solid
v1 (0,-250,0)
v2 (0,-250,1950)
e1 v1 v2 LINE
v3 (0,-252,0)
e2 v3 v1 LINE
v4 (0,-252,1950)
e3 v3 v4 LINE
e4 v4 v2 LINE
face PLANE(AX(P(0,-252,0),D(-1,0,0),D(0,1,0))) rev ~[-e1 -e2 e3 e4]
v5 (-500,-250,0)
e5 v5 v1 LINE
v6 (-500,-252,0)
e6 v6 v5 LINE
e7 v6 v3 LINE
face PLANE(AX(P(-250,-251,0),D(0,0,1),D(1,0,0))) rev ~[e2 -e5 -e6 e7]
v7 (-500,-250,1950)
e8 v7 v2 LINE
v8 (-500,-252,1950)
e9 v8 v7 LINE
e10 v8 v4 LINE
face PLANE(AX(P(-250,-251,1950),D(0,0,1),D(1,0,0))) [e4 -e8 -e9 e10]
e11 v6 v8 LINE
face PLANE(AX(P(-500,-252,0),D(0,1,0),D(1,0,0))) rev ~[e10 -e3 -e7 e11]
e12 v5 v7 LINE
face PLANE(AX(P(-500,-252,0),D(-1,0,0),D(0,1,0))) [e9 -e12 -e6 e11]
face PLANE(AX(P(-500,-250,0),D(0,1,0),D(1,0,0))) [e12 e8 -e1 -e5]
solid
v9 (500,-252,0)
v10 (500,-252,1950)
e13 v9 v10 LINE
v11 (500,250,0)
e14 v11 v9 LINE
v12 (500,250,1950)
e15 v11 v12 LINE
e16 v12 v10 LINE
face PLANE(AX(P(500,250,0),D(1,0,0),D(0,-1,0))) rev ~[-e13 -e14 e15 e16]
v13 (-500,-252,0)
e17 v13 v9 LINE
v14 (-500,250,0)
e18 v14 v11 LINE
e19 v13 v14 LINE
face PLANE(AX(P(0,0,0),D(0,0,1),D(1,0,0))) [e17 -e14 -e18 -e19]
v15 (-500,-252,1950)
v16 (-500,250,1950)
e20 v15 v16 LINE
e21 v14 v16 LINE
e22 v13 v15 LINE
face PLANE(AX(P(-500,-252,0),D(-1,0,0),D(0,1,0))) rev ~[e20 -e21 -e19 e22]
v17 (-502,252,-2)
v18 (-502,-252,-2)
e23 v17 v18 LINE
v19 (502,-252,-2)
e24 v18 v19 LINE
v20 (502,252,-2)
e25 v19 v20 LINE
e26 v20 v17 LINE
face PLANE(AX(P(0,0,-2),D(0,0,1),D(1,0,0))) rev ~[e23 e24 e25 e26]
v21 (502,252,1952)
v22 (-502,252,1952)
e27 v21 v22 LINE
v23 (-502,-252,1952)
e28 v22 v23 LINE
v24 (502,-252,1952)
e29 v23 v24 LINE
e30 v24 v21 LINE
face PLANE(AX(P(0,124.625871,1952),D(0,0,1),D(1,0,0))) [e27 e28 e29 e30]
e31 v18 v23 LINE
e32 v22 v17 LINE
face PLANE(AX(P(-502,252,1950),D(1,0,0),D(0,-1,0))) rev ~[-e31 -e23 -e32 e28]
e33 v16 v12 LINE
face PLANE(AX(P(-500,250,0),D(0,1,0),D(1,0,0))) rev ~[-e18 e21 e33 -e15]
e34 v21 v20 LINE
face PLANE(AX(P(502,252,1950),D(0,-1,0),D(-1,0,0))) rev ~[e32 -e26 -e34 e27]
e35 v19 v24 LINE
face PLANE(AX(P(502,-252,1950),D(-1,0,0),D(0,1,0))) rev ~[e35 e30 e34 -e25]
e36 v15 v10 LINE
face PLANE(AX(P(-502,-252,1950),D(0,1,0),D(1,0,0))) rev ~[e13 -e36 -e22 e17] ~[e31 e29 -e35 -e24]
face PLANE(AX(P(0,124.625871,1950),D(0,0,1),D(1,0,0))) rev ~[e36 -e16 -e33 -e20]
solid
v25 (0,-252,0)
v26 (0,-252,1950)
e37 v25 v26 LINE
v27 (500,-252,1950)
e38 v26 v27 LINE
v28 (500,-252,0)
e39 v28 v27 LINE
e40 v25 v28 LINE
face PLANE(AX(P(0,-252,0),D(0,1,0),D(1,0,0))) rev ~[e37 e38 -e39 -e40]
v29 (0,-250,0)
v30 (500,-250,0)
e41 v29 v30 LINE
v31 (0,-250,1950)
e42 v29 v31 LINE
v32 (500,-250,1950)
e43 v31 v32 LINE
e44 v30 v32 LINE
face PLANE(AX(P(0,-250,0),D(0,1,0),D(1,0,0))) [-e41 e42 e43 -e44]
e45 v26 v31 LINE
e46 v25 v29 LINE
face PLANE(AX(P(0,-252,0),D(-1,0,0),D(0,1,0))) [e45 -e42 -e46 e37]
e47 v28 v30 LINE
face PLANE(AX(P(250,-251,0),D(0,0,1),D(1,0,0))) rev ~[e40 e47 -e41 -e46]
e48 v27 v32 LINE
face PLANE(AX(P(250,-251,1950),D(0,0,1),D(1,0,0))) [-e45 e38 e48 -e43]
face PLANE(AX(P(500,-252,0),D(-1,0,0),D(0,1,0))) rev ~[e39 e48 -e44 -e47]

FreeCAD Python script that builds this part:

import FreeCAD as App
import Part
import Sketcher

doc = App.newDocument("Part")
params = doc.addObject("Spreadsheet::Sheet", "Params")
for row, (alias, value) in enumerate([
    ("sketch1_width", "1004 mm"),
    ("sketch1_height", "504 mm"),
    ("pad1_length", "2 mm"),
    ("sketch2_width", "1000 mm"),
    ("sketch2_width2", "2 mm"),
    ("sketch2_height", "502 mm"),
    ("sketch2_height2", "504 mm"),
    ("pad2_length", "1950 mm"),
    ("sketch3_width", "1004 mm"),
    ("sketch3_height", "504 mm"),
    ("pad3_length", "2 mm"),
    ("sketch4_width", "500 mm"),
    ("sketch4_height", "2 mm"),
    ("pad4_length", "1950 mm"),
    ("sketch5_width", "500 mm"),
    ("sketch5_height", "2 mm"),
    ("pad5_length", "1950 mm"),
], start=1):
    params.set(f"A{row}", alias)
    params.set(f"B{row}", "=" + value)
    params.setAlias(f"B{row}", alias)

body = doc.addObject("PartDesign::Body", "Body")

sketch1 = doc.addObject("Sketcher::SketchObject", "Sketch")
body.addObject(sketch1)
sketch1.AttachmentSupport = (doc.XY_Plane, [""])
sketch1.MapMode = "FlatFace"
sketch1.addGeometry([
    Part.LineSegment(App.Vector(502, -252, 0), App.Vector(502, 252, 0)),
    Part.LineSegment(App.Vector(502, 252, 0), App.Vector(-502, 252, 0)),
    Part.LineSegment(App.Vector(-502, 252, 0), App.Vector(-502, -252, 0)),
    Part.LineSegment(App.Vector(-502, -252, 0), App.Vector(502, -252, 0)),
], False)
sketch1.addConstraint([
    Sketcher.Constraint("Coincident", 0, 2, 1, 1),
    Sketcher.Constraint("Coincident", 1, 2, 2, 1),
    Sketcher.Constraint("Coincident", 2, 2, 3, 1),
    Sketcher.Constraint("Coincident", 3, 2, 0, 1),
    Sketcher.Constraint("Vertical", 0),
    Sketcher.Constraint("Horizontal", 1),
    Sketcher.Constraint("Vertical", 2),
    Sketcher.Constraint("Horizontal", 3),
    Sketcher.Constraint("Symmetric", 0, 2, 2, 2, -1, 1),
    Sketcher.Constraint("DistanceX", 1, 2, 1, 1, 1004.0),
    Sketcher.Constraint("DistanceY", 0, 1, 0, 2, 504.0),
])
sketch1.setExpression("Constraints[9]", "Params.sketch1_width")
sketch1.setExpression("Constraints[10]", "Params.sketch1_height")
pad1 = doc.addObject("PartDesign::Pad", "Pad")
body.addObject(pad1)
pad1.Profile = sketch1
pad1.setExpression("Length", "Params.pad1_length")
pad1.Reversed = True

sketch2 = doc.addObject("Sketcher::SketchObject", "Sketch001")
body.addObject(sketch2)
sketch2.AttachmentSupport = (doc.XY_Plane, [""])
sketch2.MapMode = "FlatFace"
sketch2.addGeometry([
    Part.LineSegment(App.Vector(-500, 250, 0), App.Vector(500, 250, 0)),
    Part.LineSegment(App.Vector(500, 250, 0), App.Vector(500, -252, 0)),
    Part.LineSegment(App.Vector(500, -252, 0), App.Vector(502, -252, 0)),
    Part.LineSegment(App.Vector(502, -252, 0), App.Vector(502, 252, 0)),
    Part.LineSegment(App.Vector(502, 252, 0), App.Vector(-502, 252, 0)),
    Part.LineSegment(App.Vector(-502, 252, 0), App.Vector(-502, -252, 0)),
    Part.LineSegment(App.Vector(-502, -252, 0), App.Vector(-500, -252, 0)),
    Part.LineSegment(App.Vector(-500, -252, 0), App.Vector(-500, 250, 0)),
], False)
sketch2.addConstraint([
    Sketcher.Constraint("Coincident", 0, 2, 1, 1),
    Sketcher.Constraint("Coincident", 1, 2, 2, 1),
    Sketcher.Constraint("Coincident", 2, 2, 3, 1),
    Sketcher.Constraint("Coincident", 3, 2, 4, 1),
    Sketcher.Constraint("Coincident", 4, 2, 5, 1),
    Sketcher.Constraint("Coincident", 5, 2, 6, 1),
    Sketcher.Constraint("Coincident", 6, 2, 7, 1),
    Sketcher.Constraint("Coincident", 7, 2, 0, 1),
    Sketcher.Constraint("Horizontal", 0),
    Sketcher.Constraint("Vertical", 1),
    Sketcher.Constraint("Horizontal", 2),
    Sketcher.Constraint("Vertical", 3),
    Sketcher.Constraint("Horizontal", 4),
    Sketcher.Constraint("Vertical", 5),
    Sketcher.Constraint("Horizontal", 6),
    Sketcher.Constraint("Vertical", 7),
    Sketcher.Constraint("Symmetric", 2, 2, 4, 2, -1, 1),
    Sketcher.Constraint("Symmetric", 1, 2, 6, 2, -2),
    Sketcher.Constraint("DistanceX", 0, 1, 0, 2, 1000.0),
    Sketcher.Constraint("DistanceX", 2, 1, 2, 2, 2.0),
    Sketcher.Constraint("DistanceY", 1, 2, 1, 1, 502.0),
    Sketcher.Constraint("DistanceY", 3, 1, 3, 2, 504.0),
])
sketch2.setExpression("Constraints[18]", "Params.sketch2_width")
sketch2.setExpression("Constraints[19]", "Params.sketch2_width2")
sketch2.setExpression("Constraints[20]", "Params.sketch2_height")
sketch2.setExpression("Constraints[21]", "Params.sketch2_height2")
pad2 = doc.addObject("PartDesign::Pad", "Pad001")
body.addObject(pad2)
pad2.Profile = sketch2
pad2.setExpression("Length", "Params.pad2_length")

sketch3 = doc.addObject("Sketcher::SketchObject", "Sketch002")
body.addObject(sketch3)
sketch3.AttachmentSupport = (doc.XY_Plane, [""])
sketch3.MapMode = "FlatFace"
sketch3.AttachmentOffset = App.Placement(App.Vector(0, 0, 1950), App.Rotation())
sketch3.addGeometry([
    Part.LineSegment(App.Vector(-502, 252, 0), App.Vector(-502, -252, 0)),
    Part.LineSegment(App.Vector(-502, -252, 0), App.Vector(502, -252, 0)),
    Part.LineSegment(App.Vector(502, -252, 0), App.Vector(502, 252, 0)),
    Part.LineSegment(App.Vector(502, 252, 0), App.Vector(-502, 252, 0)),
], False)
sketch3.addConstraint([
    Sketcher.Constraint("Coincident", 0, 2, 1, 1),
    Sketcher.Constraint("Coincident", 1, 2, 2, 1),
    Sketcher.Constraint("Coincident", 2, 2, 3, 1),
    Sketcher.Constraint("Coincident", 3, 2, 0, 1),
    Sketcher.Constraint("Vertical", 0),
    Sketcher.Constraint("Horizontal", 1),
    Sketcher.Constraint("Vertical", 2),
    Sketcher.Constraint("Horizontal", 3),
    Sketcher.Constraint("Symmetric", 0, 2, 2, 2, -1, 1),
    Sketcher.Constraint("DistanceX", 1, 1, 1, 2, 1004.0),
    Sketcher.Constraint("DistanceY", 0, 2, 0, 1, 504.0),
])
sketch3.setExpression("Constraints[9]", "Params.sketch3_width")
sketch3.setExpression("Constraints[10]", "Params.sketch3_height")
pad3 = doc.addObject("PartDesign::Pad", "Pad002")
body.addObject(pad3)
pad3.Profile = sketch3
pad3.setExpression("Length", "Params.pad3_length")
body2 = doc.addObject("PartDesign::Body", "Body001")

sketch4 = doc.addObject("Sketcher::SketchObject", "Sketch003")
body2.addObject(sketch4)
sketch4.AttachmentSupport = (doc.getObject("XY_Plane001"), [""])
sketch4.MapMode = "FlatFace"
sketch4.addGeometry([
    Part.LineSegment(App.Vector(-500, -250, 0), App.Vector(-500, -252, 0)),
    Part.LineSegment(App.Vector(-500, -252, 0), App.Vector(0, -252, 0)),
    Part.LineSegment(App.Vector(0, -252, 0), App.Vector(0, -250, 0)),
    Part.LineSegment(App.Vector(0, -250, 0), App.Vector(-500, -250, 0)),
], False)
sketch4.addConstraint([
    Sketcher.Constraint("Coincident", 0, 2, 1, 1),
    Sketcher.Constraint("Coincident", 1, 2, 2, 1),
    Sketcher.Constraint("Coincident", 2, 2, 3, 1),
    Sketcher.Constraint("Coincident", 3, 2, 0, 1),
    Sketcher.Constraint("Vertical", 0),
    Sketcher.Constraint("Horizontal", 1),
    Sketcher.Constraint("Vertical", 2),
    Sketcher.Constraint("Horizontal", 3),
    Sketcher.Constraint("PointOnObject", 1, 2, -2),
    Sketcher.Constraint("DistanceX", 1, 1, 1, 2, 500.0),
    Sketcher.Constraint("DistanceY", 0, 2, 0, 1, 2.0),
    Sketcher.Constraint("DistanceY", 0, 2, -1, 1, 252.0),
])
sketch4.setExpression("Constraints[9]", "Params.sketch4_width")
sketch4.setExpression("Constraints[10]", "Params.sketch4_height")
pad4 = doc.addObject("PartDesign::Pad", "Pad003")
body2.addObject(pad4)
pad4.Profile = sketch4
pad4.setExpression("Length", "Params.pad4_length")
body3 = doc.addObject("PartDesign::Body", "Body002")

sketch5 = doc.addObject("Sketcher::SketchObject", "Sketch004")
body3.addObject(sketch5)
sketch5.AttachmentSupport = (doc.getObject("XY_Plane002"), [""])
sketch5.MapMode = "FlatFace"
sketch5.addGeometry([
    Part.LineSegment(App.Vector(0, -250, 0), App.Vector(0, -252, 0)),
    Part.LineSegment(App.Vector(0, -252, 0), App.Vector(500, -252, 0)),
    Part.LineSegment(App.Vector(500, -252, 0), App.Vector(500, -250, 0)),
    Part.LineSegment(App.Vector(500, -250, 0), App.Vector(0, -250, 0)),
], False)
sketch5.addConstraint([
    Sketcher.Constraint("Coincident", 0, 2, 1, 1),
    Sketcher.Constraint("Coincident", 1, 2, 2, 1),
    Sketcher.Constraint("Coincident", 2, 2, 3, 1),
    Sketcher.Constraint("Coincident", 3, 2, 0, 1),
    Sketcher.Constraint("Vertical", 0),
    Sketcher.Constraint("Horizontal", 1),
    Sketcher.Constraint("Vertical", 2),
    Sketcher.Constraint("Horizontal", 3),
    Sketcher.Constraint("PointOnObject", 0, 2, -2),
    Sketcher.Constraint("DistanceX", 1, 1, 1, 2, 500.0),
    Sketcher.Constraint("DistanceY", 0, 2, 0, 1, 2.0),
    Sketcher.Constraint("DistanceY", 0, 2, -1, 1, 252.0),
])
sketch5.setExpression("Constraints[9]", "Params.sketch5_width")
sketch5.setExpression("Constraints[10]", "Params.sketch5_height")
pad5 = doc.addObject("PartDesign::Pad", "Pad004")
body3.addObject(pad5)
pad5.Profile = sketch5
pad5.setExpression("Length", "Params.pad5_length")

doc.recompute()
